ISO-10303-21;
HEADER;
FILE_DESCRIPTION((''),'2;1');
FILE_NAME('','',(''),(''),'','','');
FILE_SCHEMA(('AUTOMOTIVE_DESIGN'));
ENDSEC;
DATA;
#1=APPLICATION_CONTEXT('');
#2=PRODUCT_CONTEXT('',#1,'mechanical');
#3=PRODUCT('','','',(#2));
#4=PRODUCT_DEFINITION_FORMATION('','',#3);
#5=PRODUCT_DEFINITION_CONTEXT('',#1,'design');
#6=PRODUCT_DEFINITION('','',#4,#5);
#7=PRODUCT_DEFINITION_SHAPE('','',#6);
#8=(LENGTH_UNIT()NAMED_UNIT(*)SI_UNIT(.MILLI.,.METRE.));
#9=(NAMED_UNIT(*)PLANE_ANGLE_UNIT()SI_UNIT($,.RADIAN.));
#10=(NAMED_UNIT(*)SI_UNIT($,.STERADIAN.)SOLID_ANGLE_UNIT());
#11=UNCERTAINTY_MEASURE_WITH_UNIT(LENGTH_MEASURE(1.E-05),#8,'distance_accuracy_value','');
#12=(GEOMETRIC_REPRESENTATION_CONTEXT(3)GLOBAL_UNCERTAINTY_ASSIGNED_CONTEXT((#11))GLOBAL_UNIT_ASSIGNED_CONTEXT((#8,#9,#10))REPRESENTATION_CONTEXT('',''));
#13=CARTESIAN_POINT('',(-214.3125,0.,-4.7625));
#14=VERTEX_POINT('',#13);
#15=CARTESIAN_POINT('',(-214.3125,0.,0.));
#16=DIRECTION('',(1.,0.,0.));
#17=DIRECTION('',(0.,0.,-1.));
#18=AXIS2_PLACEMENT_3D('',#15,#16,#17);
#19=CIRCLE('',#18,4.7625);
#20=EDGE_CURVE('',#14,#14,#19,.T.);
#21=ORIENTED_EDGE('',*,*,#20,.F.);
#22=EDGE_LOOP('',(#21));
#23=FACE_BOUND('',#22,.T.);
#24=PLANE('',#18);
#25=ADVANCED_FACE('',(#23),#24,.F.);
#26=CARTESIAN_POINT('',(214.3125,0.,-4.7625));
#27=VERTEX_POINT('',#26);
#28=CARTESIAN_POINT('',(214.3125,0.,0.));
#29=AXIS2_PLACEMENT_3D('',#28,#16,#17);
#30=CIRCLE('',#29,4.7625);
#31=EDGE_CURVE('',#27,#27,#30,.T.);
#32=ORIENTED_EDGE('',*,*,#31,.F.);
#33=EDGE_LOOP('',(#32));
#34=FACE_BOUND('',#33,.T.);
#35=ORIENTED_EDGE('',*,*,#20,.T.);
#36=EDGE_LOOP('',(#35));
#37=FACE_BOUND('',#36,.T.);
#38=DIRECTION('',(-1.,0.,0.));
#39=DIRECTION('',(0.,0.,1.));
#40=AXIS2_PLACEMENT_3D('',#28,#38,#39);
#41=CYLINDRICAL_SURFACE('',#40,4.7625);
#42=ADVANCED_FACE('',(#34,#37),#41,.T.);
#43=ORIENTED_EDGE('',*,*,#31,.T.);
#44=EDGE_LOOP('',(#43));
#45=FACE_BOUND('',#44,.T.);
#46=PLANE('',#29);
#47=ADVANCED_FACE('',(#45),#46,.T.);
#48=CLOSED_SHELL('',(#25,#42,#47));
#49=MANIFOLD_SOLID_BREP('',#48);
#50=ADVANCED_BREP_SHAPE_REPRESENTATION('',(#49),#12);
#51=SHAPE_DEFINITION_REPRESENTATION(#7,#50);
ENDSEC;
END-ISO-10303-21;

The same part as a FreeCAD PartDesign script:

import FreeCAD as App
import Part
import Sketcher
from FreeCAD import Vector
Q = App.Units.Quantity

doc = App.newDocument("Part")
body = doc.addObject("PartDesign::Body", "Body")

sketch1 = body.newObject("Sketcher::SketchObject", "Sketch")
sketch1.AttachmentSupport = (doc.getObject("YZ_Plane"), [""])
sketch1.MapMode = "FlatFace"
sketch1.addGeometry(Part.Circle(Vector(0, 0, 0), Vector(0, 0, 1), 4.8), False)
sketch1.addConstraint(Sketcher.Constraint("Coincident", 0, 3, -1, 1))
sketch1.addConstraint(Sketcher.Constraint("Diameter", 0, Q("0.375 in")))
pad1 = body.newObject("PartDesign::Pad", "Pad")
pad1.Profile = sketch1
pad1.Length = Q("16.875 in")
pad1.Midplane = True

doc.recompute()
